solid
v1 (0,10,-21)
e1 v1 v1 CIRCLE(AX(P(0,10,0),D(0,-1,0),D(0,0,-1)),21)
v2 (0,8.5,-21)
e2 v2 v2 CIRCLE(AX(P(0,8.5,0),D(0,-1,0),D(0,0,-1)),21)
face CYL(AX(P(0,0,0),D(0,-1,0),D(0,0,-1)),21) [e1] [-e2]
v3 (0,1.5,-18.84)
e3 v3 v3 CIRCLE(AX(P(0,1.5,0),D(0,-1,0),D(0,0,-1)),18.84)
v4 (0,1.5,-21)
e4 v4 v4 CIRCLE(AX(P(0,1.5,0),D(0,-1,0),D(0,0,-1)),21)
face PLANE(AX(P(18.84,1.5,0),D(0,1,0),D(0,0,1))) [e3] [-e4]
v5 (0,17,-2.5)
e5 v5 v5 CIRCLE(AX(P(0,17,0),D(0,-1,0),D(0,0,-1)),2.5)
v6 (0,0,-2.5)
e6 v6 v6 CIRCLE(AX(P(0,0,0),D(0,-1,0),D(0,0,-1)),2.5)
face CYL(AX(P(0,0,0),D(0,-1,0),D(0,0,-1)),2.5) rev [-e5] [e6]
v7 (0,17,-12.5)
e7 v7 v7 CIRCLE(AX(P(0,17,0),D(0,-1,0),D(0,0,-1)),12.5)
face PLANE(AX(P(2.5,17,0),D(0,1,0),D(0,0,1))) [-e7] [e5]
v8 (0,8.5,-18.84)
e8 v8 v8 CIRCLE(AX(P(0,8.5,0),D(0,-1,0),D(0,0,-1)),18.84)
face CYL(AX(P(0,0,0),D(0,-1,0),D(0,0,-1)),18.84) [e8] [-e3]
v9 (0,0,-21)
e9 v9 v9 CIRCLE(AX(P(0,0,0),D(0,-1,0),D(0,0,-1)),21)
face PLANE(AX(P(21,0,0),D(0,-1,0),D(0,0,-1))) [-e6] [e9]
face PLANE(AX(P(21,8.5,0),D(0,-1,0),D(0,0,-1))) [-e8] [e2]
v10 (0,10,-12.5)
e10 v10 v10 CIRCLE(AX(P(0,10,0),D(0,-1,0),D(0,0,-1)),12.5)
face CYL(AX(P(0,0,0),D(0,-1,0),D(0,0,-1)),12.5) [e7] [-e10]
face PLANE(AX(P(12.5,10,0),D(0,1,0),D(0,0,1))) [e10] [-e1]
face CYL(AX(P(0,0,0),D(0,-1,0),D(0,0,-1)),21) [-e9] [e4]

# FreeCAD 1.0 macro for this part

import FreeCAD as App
import Part
import Sketcher

V = App.Vector

doc = App.newDocument("Part")
params = doc.addObject("Spreadsheet::Sheet", "Params")
for row, (alias, value) in enumerate([
    ("sketch1_width", "10 mm"),
    ("sketch1_height", "17 mm"),
    ("sketch1_height2", "7 mm"),
    ("sketch1_width2", "18.5 mm"),
    ("sketch1_width3", "2.16 mm"),
    ("revolution_angle", "360 deg"),
], start=1):
    params.set(f"A{row}", alias)
    params.set(f"B{row}", "=" + value)
    params.setAlias(f"B{row}", alias)

body = doc.addObject("PartDesign::Body", "Body")

sketch1 = body.newObject("Sketcher::SketchObject", "Sketch")
sketch1.AttachmentSupport = (doc.getObject("XY_Plane"), [""])
sketch1.MapMode = "FlatFace"
sketch1.addGeometry([
    Part.LineSegment(V(2.5, 17, 0), V(2.5, 0, 0)),
    Part.LineSegment(V(2.5, 0, 0), V(21, 0, 0)),
    Part.LineSegment(V(21, 0, 0), V(21, 1.5, 0)),
    Part.LineSegment(V(21, 1.5, 0), V(18.8, 1.5, 0)),
    Part.LineSegment(V(18.8, 1.5, 0), V(18.8, 8.5, 0)),
    Part.LineSegment(V(18.8, 8.5, 0), V(21, 8.5, 0)),
    Part.LineSegment(V(21, 8.5, 0), V(21, 10, 0)),
    Part.LineSegment(V(21, 10, 0), V(12.5, 10, 0)),
    Part.LineSegment(V(12.5, 10, 0), V(12.5, 17, 0)),
    Part.LineSegment(V(12.5, 17, 0), V(2.5, 17, 0)),
], False)
sketch1.addConstraint([
    Sketcher.Constraint("Coincident", 0, 2, 1, 1),
    Sketcher.Constraint("Coincident", 1, 2, 2, 1),
    Sketcher.Constraint("Coincident", 2, 2, 3, 1),
    Sketcher.Constraint("Coincident", 3, 2, 4, 1),
    Sketcher.Constraint("Coincident", 4, 2, 5, 1),
    Sketcher.Constraint("Coincident", 5, 2, 6, 1),
    Sketcher.Constraint("Coincident", 6, 2, 7, 1),
    Sketcher.Constraint("Coincident", 7, 2, 8, 1),
    Sketcher.Constraint("Coincident", 8, 2, 9, 1),
    Sketcher.Constraint("Coincident", 9, 2, 0, 1),
    Sketcher.Constraint("Vertical", 0),
    Sketcher.Constraint("Horizontal", 1),
    Sketcher.Constraint("Vertical", 2),
    Sketcher.Constraint("Horizontal", 3),
    Sketcher.Constraint("Vertical", 4),
    Sketcher.Constraint("Horizontal", 5),
    Sketcher.Constraint("Vertical", 6),
    Sketcher.Constraint("Horizontal", 7),
    Sketcher.Constraint("Vertical", 8),
    Sketcher.Constraint("Horizontal", 9),
    Sketcher.Constraint("PointOnObject", 0, 2, -1),
    Sketcher.Constraint("Vertical", 2, 2, 5, 2),
    Sketcher.Constraint("Equal", 2, 6),
    Sketcher.Constraint("Equal", 4, 8),
    Sketcher.Constraint("DistanceX", 9, 2, 9, 1, 10.0),
    Sketcher.Constraint("DistanceY", 0, 2, 0, 1, 17.0),
    Sketcher.Constraint("DistanceY", 4, 1, 4, 2, 7.0),
    Sketcher.Constraint("DistanceX", 1, 1, 1, 2, 18.5),
    Sketcher.Constraint("DistanceX", -1, 1, 1, 2, 21.0),
    Sketcher.Constraint("DistanceX", 3, 2, 3, 1, 2.16),
])
sketch1.setExpression("Constraints[24]", "Params.sketch1_width")
sketch1.setExpression("Constraints[25]", "Params.sketch1_height")
sketch1.setExpression("Constraints[26]", "Params.sketch1_height2")
sketch1.setExpression("Constraints[27]", "Params.sketch1_width2")
sketch1.setExpression("Constraints[29]", "Params.sketch1_width3")
revolution = body.newObject("PartDesign::Revolution", "Revolution")
revolution.Profile = sketch1
revolution.ReferenceAxis = (sketch1, ["V_Axis"])
revolution.setExpression("Angle", "Params.revolution_angle")

doc.recompute()
